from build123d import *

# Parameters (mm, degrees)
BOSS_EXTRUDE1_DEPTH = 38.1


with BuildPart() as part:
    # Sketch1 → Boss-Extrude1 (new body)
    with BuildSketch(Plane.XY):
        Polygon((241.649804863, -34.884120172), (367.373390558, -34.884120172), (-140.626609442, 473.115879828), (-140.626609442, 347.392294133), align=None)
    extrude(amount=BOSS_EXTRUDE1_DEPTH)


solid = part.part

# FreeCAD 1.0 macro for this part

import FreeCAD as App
import Part
import Sketcher
Q = App.Units.Quantity


def add_polygon(sketch, points):
    """Adds a closed chain of lines whose ends are joined by coincident constraints."""
    first, n = sketch.GeometryCount, len(points)
    for a, b in zip(points, points[1:] + points[:1]):
        sketch.addGeometry(Part.LineSegment(App.Vector(*a, 0), App.Vector(*b, 0)), False)
    for i in range(n):
        sketch.addConstraint(Sketcher.Constraint("Coincident", first + i, 2, first + (i + 1) % n, 1))

doc = App.newDocument("Part")
body = doc.addObject("PartDesign::Body", "Body")

sketch1 = body.newObject("Sketcher::SketchObject", "Sketch")
sketch1.AttachmentSupport = (doc.getObject("XY_Plane"), [""])
sketch1.MapMode = "FlatFace"
add_polygon(sketch1, [(241.649805, -34.88412), (367.373391, -34.88412), (-140.626609, 473.11588), (-140.626609, 347.392294)])
sketch1.addConstraint([
    Sketcher.Constraint("Horizontal", 0),
    Sketcher.Constraint("Vertical", 2),
    Sketcher.Constraint("Parallel", 1, 3),
    Sketcher.Constraint("Equal", 0, 2),
    Sketcher.Constraint("DistanceX", 1, 2, 0, 2, Q("20 in")),
    Sketcher.Constraint("Distance", 3, Q("540.62049 mm")),
    Sketcher.Constraint("DistanceX", -1, 1, 0, 2, Q("367.373391 mm")),
    Sketcher.Constraint("DistanceY", 0, 2, -1, 1, Q("34.88412 mm")),
])
pad1 = body.newObject("PartDesign::Pad", "Pad")
pad1.Profile = sketch1
pad1.Length = Q("1.5 in")

doc.recompute()
